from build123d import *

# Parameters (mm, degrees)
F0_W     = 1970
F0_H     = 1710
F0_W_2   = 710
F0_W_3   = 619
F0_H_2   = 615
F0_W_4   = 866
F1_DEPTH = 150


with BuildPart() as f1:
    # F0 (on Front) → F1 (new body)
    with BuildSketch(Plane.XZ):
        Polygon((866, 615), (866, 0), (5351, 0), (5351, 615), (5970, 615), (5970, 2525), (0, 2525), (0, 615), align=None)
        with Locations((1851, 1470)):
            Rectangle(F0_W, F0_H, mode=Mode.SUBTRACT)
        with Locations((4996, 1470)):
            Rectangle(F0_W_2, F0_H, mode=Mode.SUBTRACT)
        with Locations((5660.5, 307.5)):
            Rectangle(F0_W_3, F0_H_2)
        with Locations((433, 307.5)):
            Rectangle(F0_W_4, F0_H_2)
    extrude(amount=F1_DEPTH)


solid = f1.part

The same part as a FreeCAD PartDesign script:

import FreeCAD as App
import Part
import Sketcher

V = App.Vector
Q = App.Units.Quantity


def add_polygon(sketch, points):
    """Adds a closed chain of lines whose ends are joined by coincident constraints."""
    first, n = sketch.GeometryCount, len(points)
    for a, b in zip(points, points[1:] + points[:1]):
        sketch.addGeometry(Part.LineSegment(App.Vector(*a, 0), App.Vector(*b, 0)), False)
    for i in range(n):
        sketch.addConstraint(Sketcher.Constraint("Coincident", first + i, 2, first + (i + 1) % n, 1))

doc = App.newDocument("Part")
body = doc.addObject("PartDesign::Body", "Body")

# Sketch on XZ plane
sketch1 = doc.addObject("Sketcher::SketchObject", "Sketch")
body.addObject(sketch1)
sketch1.AttachmentSupport = (doc.XZ_Plane, [""])
sketch1.MapMode = "FlatFace"
add_polygon(sketch1, [(0, 2525), (0, 0), (5970, 0), (5970, 2525)])  # lines 0-3
add_polygon(sketch1, [(2836, 615), (866, 615), (866, 2325), (2836, 2325)])  # lines 4-7
add_polygon(sketch1, [(5351, 2325), (5351, 615), (4641, 615), (4641, 2325)])  # lines 8-11
sketch1.addConstraint(Sketcher.Constraint("Vertical", 0))
sketch1.addConstraint(Sketcher.Constraint("Horizontal", 1))
sketch1.addConstraint(Sketcher.Constraint("Vertical", 2))
sketch1.addConstraint(Sketcher.Constraint("Horizontal", 3))
sketch1.addConstraint(Sketcher.Constraint("Horizontal", 4))
sketch1.addConstraint(Sketcher.Constraint("Vertical", 5))
sketch1.addConstraint(Sketcher.Constraint("Horizontal", 6))
sketch1.addConstraint(Sketcher.Constraint("Vertical", 7))
sketch1.addConstraint(Sketcher.Constraint("Vertical", 8))
sketch1.addConstraint(Sketcher.Constraint("Horizontal", 9))
sketch1.addConstraint(Sketcher.Constraint("Vertical", 10))
sketch1.addConstraint(Sketcher.Constraint("Horizontal", 11))
sketch1.addConstraint(Sketcher.Constraint("Coincident", 0, 2, -1, 1))
sketch1.addConstraint(Sketcher.Constraint("Horizontal", 7, 2, 8, 2))
sketch1.addConstraint(Sketcher.Constraint("Horizontal", 6, 2, 10, 2))
sketch1.addConstraint(Sketcher.Constraint("DistanceX", 1, 1, 1, 2, Q("5970 mm")))
sketch1.addConstraint(Sketcher.Constraint("DistanceX", 4, 2, 4, 1, Q("1970 mm")))
sketch1.addConstraint(Sketcher.Constraint("DistanceX", 9, 2, 9, 1, Q("710 mm")))
sketch1.addConstraint(Sketcher.Constraint("DistanceY", 0, 2, 0, 1, Q("2525 mm")))
sketch1.addConstraint(Sketcher.Constraint("DistanceY", 5, 1, 5, 2, Q("1710 mm")))
sketch1.addConstraint(Sketcher.Constraint("DistanceX", -1, 1, 4, 2, Q("866 mm")))
sketch1.addConstraint(Sketcher.Constraint("DistanceY", -1, 1, 4, 2, Q("615 mm")))
sketch1.addConstraint(Sketcher.Constraint("DistanceX", -1, 1, 8, 2, Q("5351 mm")))
pad1 = doc.addObject("PartDesign::Pad", "Pad")
body.addObject(pad1)
pad1.Profile = sketch1
pad1.Length = 150

doc.recompute()
